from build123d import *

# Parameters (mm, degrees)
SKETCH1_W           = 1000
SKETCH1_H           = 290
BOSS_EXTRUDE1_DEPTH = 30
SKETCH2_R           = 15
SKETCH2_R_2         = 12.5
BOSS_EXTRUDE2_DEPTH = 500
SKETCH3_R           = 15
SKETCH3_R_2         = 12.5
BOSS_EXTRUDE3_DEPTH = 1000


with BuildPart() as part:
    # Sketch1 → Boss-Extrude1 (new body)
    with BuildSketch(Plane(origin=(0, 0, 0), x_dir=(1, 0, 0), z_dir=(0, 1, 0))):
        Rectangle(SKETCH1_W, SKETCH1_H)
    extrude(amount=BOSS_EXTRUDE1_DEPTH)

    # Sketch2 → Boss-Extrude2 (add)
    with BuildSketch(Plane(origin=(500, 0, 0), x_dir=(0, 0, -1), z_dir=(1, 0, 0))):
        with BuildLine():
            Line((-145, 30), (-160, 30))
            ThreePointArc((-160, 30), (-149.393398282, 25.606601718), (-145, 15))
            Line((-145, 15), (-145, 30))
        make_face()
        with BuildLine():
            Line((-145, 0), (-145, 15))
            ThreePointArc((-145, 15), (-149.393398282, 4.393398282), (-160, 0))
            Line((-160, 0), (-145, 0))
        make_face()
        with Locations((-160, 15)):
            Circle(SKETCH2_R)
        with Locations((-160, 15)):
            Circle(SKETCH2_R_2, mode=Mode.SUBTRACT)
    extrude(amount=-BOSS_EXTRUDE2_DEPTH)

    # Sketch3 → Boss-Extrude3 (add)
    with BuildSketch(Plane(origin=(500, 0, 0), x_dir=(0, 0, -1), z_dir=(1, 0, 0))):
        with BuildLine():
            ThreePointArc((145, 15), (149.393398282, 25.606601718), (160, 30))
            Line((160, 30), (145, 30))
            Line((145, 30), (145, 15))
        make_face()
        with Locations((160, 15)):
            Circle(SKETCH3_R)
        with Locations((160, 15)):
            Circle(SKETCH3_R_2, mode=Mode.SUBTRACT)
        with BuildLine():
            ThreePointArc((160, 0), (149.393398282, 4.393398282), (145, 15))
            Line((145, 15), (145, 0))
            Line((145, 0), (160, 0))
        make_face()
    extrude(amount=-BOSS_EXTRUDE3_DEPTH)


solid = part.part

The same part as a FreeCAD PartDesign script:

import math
import FreeCAD as App
import Part
import Sketcher
from FreeCAD import Vector

doc = App.newDocument("Part")
body = doc.addObject("PartDesign::Body", "Body")

# Sketch on XZ plane
sketch1 = body.newObject("Sketcher::SketchObject", "Sketch")
sketch1.AttachmentSupport = (doc.getObject("XZ_Plane"), [""])
sketch1.MapMode = "FlatFace"
sketch1.addGeometry([
    Part.LineSegment(Vector(-500, -145, 0), Vector(-500, 145, 0)),
    Part.LineSegment(Vector(-500, 145, 0), Vector(500, 145, 0)),
    Part.LineSegment(Vector(500, 145, 0), Vector(500, -145, 0)),
    Part.LineSegment(Vector(500, -145, 0), Vector(-500, -145, 0)),
], False)
sketch1.addConstraint([
    Sketcher.Constraint("Coincident", 0, 2, 1, 1),
    Sketcher.Constraint("Coincident", 1, 2, 2, 1),
    Sketcher.Constraint("Coincident", 2, 2, 3, 1),
    Sketcher.Constraint("Coincident", 3, 2, 0, 1),
    Sketcher.Constraint("Vertical", 0),
    Sketcher.Constraint("Horizontal", 1),
    Sketcher.Constraint("Vertical", 2),
    Sketcher.Constraint("Horizontal", 3),
    Sketcher.Constraint("Symmetric", 0, 2, 2, 2, -1, 1),
    Sketcher.Constraint("DistanceX", 1, 1, 1, 2, 1000.0),
    Sketcher.Constraint("DistanceY", 0, 1, 0, 2, 290.0),
])
pad1 = body.newObject("PartDesign::Pad", "Pad")
pad1.Profile = sketch1
pad1.Length = 30
pad1.Reversed = True

# Sketch on YZ plane
sketch2 = body.newObject("Sketcher::SketchObject", "Sketch001")
sketch2.AttachmentSupport = (doc.getObject("YZ_Plane"), [""])
sketch2.MapMode = "FlatFace"
sketch2.AttachmentOffset = App.Placement(Vector(0, 0, 500), App.Rotation())
sketch2.addGeometry([
    Part.LineSegment(Vector(30, 145, 0), Vector(30, 160, 0)),  # 0
    Part.ArcOfCircle(Part.Circle(Vector(15, 160, 0), Vector(0, 0, 1), 15), math.radians(0), math.radians(180)),  # 1
    Part.LineSegment(Vector(0, 160, 0), Vector(0, 145, 0)),  # 2
    Part.LineSegment(Vector(0, 145, 0), Vector(30, 145, 0)),  # 3
    Part.Circle(Vector(15, 160, 0), Vector(0, 0, 1), 12),  # 4
], False)
sketch2.addConstraint([
    Sketcher.Constraint("Tangent", 0, 2, 1, 1),
    Sketcher.Constraint("Tangent", 1, 2, 2, 1),
    Sketcher.Constraint("Coincident", 2, 2, 3, 1),
    Sketcher.Constraint("Coincident", 3, 2, 0, 1),
    Sketcher.Constraint("Vertical", 0),
    Sketcher.Constraint("Vertical", 2),
    Sketcher.Constraint("Horizontal", 3),
    Sketcher.Constraint("Coincident", 4, 3, 1, 3),
    Sketcher.Constraint("PointOnObject", 1, 2, -2),
    Sketcher.Constraint("Diameter", 4, 25.0),
    Sketcher.Constraint("Radius", 1, 15.0),
    Sketcher.Constraint("DistanceY", 0, 1, 0, 2, 15.0),
    Sketcher.Constraint("DistanceY", -1, 1, 1, 3, 160.0),
])
pad2 = body.newObject("PartDesign::Pad", "Pad001")
pad2.Profile = sketch2
pad2.Length = 500
pad2.Reversed = True

# Sketch on YZ plane
sketch3 = body.newObject("Sketcher::SketchObject", "Sketch002")
sketch3.AttachmentSupport = (doc.getObject("YZ_Plane"), [""])
sketch3.MapMode = "FlatFace"
sketch3.AttachmentOffset = App.Placement(Vector(0, 0, 500), App.Rotation())
sketch3.addGeometry([
    Part.LineSegment(Vector(30, -160, 0), Vector(30, -145, 0)),  # 0
    Part.LineSegment(Vector(30, -145, 0), Vector(0, -145, 0)),  # 1
    Part.LineSegment(Vector(0, -145, 0), Vector(0, -160, 0)),  # 2
    Part.ArcOfCircle(Part.Circle(Vector(15, -160, 0), Vector(0, 0, 1), 15), math.radians(180), math.radians(360)),  # 3
    Part.Circle(Vector(15, -160, 0), Vector(0, 0, 1), 12),  # 4
], False)
sketch3.addConstraint([
    Sketcher.Constraint("Coincident", 0, 2, 1, 1),
    Sketcher.Constraint("Coincident", 1, 2, 2, 1),
    Sketcher.Constraint("Tangent", 2, 2, 3, 1),
    Sketcher.Constraint("Tangent", 3, 2, 0, 1),
    Sketcher.Constraint("Vertical", 0),
    Sketcher.Constraint("Horizontal", 1),
    Sketcher.Constraint("Vertical", 2),
    Sketcher.Constraint("Coincident", 4, 3, 3, 3),
    Sketcher.Constraint("PointOnObject", 1, 2, -2),
    Sketcher.Constraint("Diameter", 4, 25.0),
    Sketcher.Constraint("Radius", 3, 15.0),
    Sketcher.Constraint("DistanceY", 0, 1, 0, 2, 15.0),
    Sketcher.Constraint("DistanceY", 3, 3, -1, 1, 160.0),
])
pad3 = body.newObject("PartDesign::Pad", "Pad002")
pad3.Profile = sketch3
pad3.Length = 1000
pad3.Reversed = True

doc.recompute()
